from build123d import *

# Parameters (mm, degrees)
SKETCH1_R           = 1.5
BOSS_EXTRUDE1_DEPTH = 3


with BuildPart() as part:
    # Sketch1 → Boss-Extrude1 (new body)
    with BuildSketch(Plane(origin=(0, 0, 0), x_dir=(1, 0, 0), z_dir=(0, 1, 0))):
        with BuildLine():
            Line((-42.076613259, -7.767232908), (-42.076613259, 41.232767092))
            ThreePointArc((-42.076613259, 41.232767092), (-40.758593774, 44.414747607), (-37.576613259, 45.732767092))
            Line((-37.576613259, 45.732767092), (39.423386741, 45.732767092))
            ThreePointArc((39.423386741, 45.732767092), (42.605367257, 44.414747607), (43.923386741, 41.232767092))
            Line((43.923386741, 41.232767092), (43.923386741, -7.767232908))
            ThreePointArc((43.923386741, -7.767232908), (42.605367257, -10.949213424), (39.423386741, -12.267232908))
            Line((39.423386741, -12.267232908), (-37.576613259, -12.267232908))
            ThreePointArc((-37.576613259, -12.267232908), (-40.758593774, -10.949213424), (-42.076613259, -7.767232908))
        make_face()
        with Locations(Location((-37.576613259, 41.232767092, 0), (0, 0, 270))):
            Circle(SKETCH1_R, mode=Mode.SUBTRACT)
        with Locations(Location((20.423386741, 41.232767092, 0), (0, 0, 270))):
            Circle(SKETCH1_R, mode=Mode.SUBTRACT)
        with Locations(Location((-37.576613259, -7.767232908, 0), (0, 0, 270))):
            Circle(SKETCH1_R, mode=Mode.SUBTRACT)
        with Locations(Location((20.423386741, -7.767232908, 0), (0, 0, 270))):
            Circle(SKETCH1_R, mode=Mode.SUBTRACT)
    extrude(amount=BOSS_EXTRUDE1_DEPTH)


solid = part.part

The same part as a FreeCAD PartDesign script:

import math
import FreeCAD as App
import Part
import Sketcher

doc = App.newDocument("Part")
body = doc.addObject("PartDesign::Body", "Body")

# Sketch on XZ plane
sketch1 = doc.addObject("Sketcher::SketchObject", "Sketch")
body.addObject(sketch1)
sketch1.AttachmentSupport = (doc.XZ_Plane, [""])
sketch1.MapMode = "FlatFace"
sketch1.addGeometry([
    Part.LineSegment(App.Vector(-42.1, -41.2, 0), App.Vector(-42.1, 7.8, 0)),  # 0
    Part.ArcOfCircle(Part.Circle(App.Vector(-37.6, 7.8, 0), App.Vector(0, 0, 1), 4.5), math.radians(90), math.radians(180)),  # 1
    Part.LineSegment(App.Vector(-37.6, 12.3, 0), App.Vector(39.4, 12.3, 0)),  # 2
    Part.ArcOfCircle(Part.Circle(App.Vector(39.4, 7.8, 0), App.Vector(0, 0, 1), 4.5), math.radians(0), math.radians(90)),  # 3
    Part.LineSegment(App.Vector(43.9, 7.8, 0), App.Vector(43.9, -41.2, 0)),  # 4
    Part.ArcOfCircle(Part.Circle(App.Vector(39.4, -41.2, 0), App.Vector(0, 0, 1), 4.5), math.radians(-90), math.radians(0)),  # 5
    Part.LineSegment(App.Vector(39.4, -45.7, 0), App.Vector(-37.6, -45.7, 0)),  # 6
    Part.ArcOfCircle(Part.Circle(App.Vector(-37.6, -41.2, 0), App.Vector(0, 0, 1), 4.5), math.radians(-180), math.radians(-90)),  # 7
    Part.Circle(App.Vector(20.4, 7.8, 0), App.Vector(0, 0, 1), 1.5),  # 8
    Part.Circle(App.Vector(-37.6, 7.8, 0), App.Vector(0, 0, 1), 1.5),  # 9
    Part.Circle(App.Vector(20.4, -41.2, 0), App.Vector(0, 0, 1), 1.5),  # 10
    Part.Circle(App.Vector(-37.6, -41.2, 0), App.Vector(0, 0, 1), 1.5),  # 11
], False)
sketch1.addConstraint([
    Sketcher.Constraint("Tangent", 0, 2, 1, 2),
    Sketcher.Constraint("Tangent", 1, 1, 2, 1),
    Sketcher.Constraint("Tangent", 2, 2, 3, 2),
    Sketcher.Constraint("Tangent", 3, 1, 4, 1),
    Sketcher.Constraint("Tangent", 4, 2, 5, 2),
    Sketcher.Constraint("Tangent", 5, 1, 6, 1),
    Sketcher.Constraint("Tangent", 6, 2, 7, 2),
    Sketcher.Constraint("Tangent", 7, 1, 0, 1),
    Sketcher.Constraint("Vertical", 0),
    Sketcher.Constraint("Horizontal", 2),
    Sketcher.Constraint("Vertical", 4),
    Sketcher.Constraint("Horizontal", 6),
    Sketcher.Constraint("Coincident", 9, 3, 1, 3),
    Sketcher.Constraint("Coincident", 11, 3, 7, 3),
    Sketcher.Constraint("Equal", 1, 3),
    Sketcher.Constraint("Equal", 3, 5),
    Sketcher.Constraint("Equal", 5, 7),
    Sketcher.Constraint("Equal", 8, 9),
    Sketcher.Constraint("Equal", 9, 10),
    Sketcher.Constraint("Equal", 10, 11),
    Sketcher.Constraint("Horizontal", 3, 3, 8, 3),
    Sketcher.Constraint("Horizontal", 7, 3, 10, 3),
    Sketcher.Constraint("Vertical", 8, 3, 10, 3),
    Sketcher.Constraint("Diameter", 8, 3.0),
    Sketcher.Constraint("Radius", 1, 4.5),
    Sketcher.Constraint("DistanceX", 2, 1, 2, 2, 77.0),
    Sketcher.Constraint("DistanceY", 0, 1, 0, 2, 49.0),
    Sketcher.Constraint("DistanceX", 8, 3, 3, 3, 19.0),
    Sketcher.Constraint("DistanceX", 1, 3, -1, 1, 37.576613),
    Sketcher.Constraint("DistanceY", -1, 1, 1, 3, 7.767233),
])
pad1 = doc.addObject("PartDesign::Pad", "Pad")
body.addObject(pad1)
pad1.Profile = sketch1
pad1.Length = 3
pad1.Reversed = True

doc.recompute()
